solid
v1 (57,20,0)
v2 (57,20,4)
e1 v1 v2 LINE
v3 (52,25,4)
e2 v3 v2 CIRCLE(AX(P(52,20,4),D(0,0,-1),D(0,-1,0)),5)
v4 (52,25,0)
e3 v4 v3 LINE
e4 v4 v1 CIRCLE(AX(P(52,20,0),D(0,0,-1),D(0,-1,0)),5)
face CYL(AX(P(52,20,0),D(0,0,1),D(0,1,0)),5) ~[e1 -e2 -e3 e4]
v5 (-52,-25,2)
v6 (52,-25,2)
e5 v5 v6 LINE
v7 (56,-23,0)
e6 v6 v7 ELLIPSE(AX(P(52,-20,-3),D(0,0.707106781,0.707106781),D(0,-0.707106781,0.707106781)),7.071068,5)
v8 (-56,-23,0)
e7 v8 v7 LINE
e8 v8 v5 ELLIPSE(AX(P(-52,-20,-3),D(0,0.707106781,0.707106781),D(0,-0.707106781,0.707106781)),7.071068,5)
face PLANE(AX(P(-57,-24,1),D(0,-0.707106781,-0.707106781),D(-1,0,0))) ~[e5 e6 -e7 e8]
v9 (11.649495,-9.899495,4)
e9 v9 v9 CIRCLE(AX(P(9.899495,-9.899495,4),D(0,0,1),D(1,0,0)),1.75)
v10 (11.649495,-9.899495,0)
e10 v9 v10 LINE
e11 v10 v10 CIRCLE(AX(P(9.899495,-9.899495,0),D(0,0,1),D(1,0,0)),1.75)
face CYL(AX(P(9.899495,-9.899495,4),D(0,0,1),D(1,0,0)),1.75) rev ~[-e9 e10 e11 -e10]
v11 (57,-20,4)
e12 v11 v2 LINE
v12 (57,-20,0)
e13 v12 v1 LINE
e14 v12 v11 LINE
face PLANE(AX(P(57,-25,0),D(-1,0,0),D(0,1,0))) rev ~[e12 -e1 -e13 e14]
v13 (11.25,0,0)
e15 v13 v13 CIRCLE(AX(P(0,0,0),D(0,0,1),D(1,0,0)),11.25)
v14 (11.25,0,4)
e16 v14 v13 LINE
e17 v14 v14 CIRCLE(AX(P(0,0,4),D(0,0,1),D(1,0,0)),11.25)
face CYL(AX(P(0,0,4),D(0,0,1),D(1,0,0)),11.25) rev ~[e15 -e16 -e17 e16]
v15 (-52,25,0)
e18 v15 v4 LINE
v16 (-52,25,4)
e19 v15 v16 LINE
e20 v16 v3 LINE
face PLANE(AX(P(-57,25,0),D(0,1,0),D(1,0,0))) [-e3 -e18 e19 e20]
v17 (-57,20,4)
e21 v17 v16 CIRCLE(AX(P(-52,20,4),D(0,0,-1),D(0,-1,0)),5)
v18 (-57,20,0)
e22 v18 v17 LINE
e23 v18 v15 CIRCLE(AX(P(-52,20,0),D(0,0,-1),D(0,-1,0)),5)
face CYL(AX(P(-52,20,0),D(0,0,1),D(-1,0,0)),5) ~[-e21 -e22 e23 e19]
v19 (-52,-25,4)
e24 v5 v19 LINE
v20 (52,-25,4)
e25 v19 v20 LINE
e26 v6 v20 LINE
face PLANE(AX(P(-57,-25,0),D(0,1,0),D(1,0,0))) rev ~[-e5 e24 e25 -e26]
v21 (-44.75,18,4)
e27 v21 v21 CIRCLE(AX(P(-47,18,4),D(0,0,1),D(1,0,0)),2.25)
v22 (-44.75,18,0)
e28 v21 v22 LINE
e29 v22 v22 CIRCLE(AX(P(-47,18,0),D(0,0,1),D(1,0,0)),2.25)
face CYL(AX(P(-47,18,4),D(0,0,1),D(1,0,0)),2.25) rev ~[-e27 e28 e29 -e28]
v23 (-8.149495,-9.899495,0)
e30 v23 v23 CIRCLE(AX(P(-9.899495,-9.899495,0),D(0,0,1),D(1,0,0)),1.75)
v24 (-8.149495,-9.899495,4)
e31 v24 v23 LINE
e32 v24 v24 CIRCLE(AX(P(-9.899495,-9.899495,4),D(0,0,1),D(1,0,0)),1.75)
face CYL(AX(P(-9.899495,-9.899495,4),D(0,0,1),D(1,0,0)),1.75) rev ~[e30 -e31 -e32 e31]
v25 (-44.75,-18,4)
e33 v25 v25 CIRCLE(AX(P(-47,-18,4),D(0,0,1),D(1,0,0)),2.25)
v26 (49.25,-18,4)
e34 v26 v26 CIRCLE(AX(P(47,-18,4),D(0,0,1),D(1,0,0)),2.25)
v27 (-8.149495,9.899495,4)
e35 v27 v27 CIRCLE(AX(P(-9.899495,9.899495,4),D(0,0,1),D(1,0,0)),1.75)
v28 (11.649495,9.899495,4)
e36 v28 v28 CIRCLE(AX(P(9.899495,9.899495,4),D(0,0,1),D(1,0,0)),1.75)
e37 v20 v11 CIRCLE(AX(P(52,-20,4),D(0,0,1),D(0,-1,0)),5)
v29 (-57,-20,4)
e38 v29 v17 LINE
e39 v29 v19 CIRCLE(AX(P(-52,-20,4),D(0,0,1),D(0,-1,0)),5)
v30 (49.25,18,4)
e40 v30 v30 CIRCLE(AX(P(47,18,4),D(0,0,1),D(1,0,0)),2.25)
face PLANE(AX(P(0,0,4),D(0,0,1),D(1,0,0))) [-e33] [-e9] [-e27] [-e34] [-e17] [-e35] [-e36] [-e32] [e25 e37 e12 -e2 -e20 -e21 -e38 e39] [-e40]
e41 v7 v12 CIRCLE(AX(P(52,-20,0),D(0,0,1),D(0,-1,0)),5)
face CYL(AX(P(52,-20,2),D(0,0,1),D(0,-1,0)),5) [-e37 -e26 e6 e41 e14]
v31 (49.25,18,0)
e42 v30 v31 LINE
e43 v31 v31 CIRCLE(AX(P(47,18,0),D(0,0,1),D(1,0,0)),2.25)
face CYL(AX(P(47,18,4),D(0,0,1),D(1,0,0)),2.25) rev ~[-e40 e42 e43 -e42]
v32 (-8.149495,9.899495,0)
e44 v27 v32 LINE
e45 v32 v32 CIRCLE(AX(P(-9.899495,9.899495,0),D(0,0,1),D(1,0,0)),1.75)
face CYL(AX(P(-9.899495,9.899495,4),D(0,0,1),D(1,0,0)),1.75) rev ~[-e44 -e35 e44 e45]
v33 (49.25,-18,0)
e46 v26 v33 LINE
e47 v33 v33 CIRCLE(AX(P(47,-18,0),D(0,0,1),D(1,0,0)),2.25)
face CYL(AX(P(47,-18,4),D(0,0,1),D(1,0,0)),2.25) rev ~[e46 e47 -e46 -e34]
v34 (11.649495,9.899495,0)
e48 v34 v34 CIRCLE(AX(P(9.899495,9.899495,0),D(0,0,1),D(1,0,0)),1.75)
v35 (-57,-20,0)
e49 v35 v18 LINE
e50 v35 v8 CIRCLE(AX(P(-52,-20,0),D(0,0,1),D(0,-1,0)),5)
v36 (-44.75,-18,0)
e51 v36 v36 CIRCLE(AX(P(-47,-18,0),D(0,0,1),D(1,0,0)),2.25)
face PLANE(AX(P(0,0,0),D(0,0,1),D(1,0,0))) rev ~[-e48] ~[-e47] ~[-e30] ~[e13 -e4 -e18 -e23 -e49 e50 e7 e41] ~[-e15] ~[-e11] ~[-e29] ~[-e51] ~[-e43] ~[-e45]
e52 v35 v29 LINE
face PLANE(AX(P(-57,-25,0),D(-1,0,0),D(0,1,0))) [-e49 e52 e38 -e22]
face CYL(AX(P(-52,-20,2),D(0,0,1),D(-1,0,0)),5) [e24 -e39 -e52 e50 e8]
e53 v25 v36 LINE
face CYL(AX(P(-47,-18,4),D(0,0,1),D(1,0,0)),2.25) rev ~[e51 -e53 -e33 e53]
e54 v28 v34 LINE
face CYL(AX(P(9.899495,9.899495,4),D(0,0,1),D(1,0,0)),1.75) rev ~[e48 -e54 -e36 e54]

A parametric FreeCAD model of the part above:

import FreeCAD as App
import Part
import Sketcher
from FreeCAD import Vector
Q = App.Units.Quantity


def edges_at(feature, points):
    """Names of the edges that pass closest to the given points."""
    edges = feature.Shape.Edges
    near = lambda p: min(range(len(edges)), key=lambda i: edges[i].distToShape(Part.Vertex(*p))[0])
    return sorted({f"Edge{near(p) + 1}" for p in points})

doc = App.newDocument("Part")
body = doc.addObject("PartDesign::Body", "Body")

# Sketch on XY plane
sketch1 = doc.addObject("Sketcher::SketchObject", "Sketch")
body.addObject(sketch1)
sketch1.AttachmentSupport = (doc.XY_Plane, [""])
sketch1.MapMode = "FlatFace"
sketch1.addGeometry([
    Part.LineSegment(Vector(-57, 25, 0), Vector(-57, -25, 0)),
    Part.LineSegment(Vector(-57, -25, 0), Vector(57, -25, 0)),
    Part.LineSegment(Vector(57, -25, 0), Vector(57, 25, 0)),
    Part.LineSegment(Vector(57, 25, 0), Vector(-57, 25, 0)),
], False)
sketch1.addConstraint([
    Sketcher.Constraint("Coincident", 0, 2, 1, 1),
    Sketcher.Constraint("Coincident", 1, 2, 2, 1),
    Sketcher.Constraint("Coincident", 2, 2, 3, 1),
    Sketcher.Constraint("Coincident", 3, 2, 0, 1),
    Sketcher.Constraint("Vertical", 0),
    Sketcher.Constraint("Horizontal", 1),
    Sketcher.Constraint("Vertical", 2),
    Sketcher.Constraint("Horizontal", 3),
    Sketcher.Constraint("Symmetric", 0, 2, 2, 2, -1, 1),
    Sketcher.Constraint("DistanceX", 1, 1, 1, 2, Q("114 mm")),
    Sketcher.Constraint("DistanceY", 0, 2, 0, 1, Q("50 mm")),
])
pad1 = doc.addObject("PartDesign::Pad", "Pad")
body.addObject(pad1)
pad1.Profile = sketch1
pad1.Length = 4

# Sketch on XY plane
sketch2 = doc.addObject("Sketcher::SketchObject", "Sketch001")
body.addObject(sketch2)
sketch2.AttachmentSupport = (doc.XY_Plane, [""])
sketch2.MapMode = "FlatFace"
sketch2.AttachmentOffset = App.Placement(Vector(0, 0, 4), App.Rotation())
sketch2.addGeometry([
    Part.Circle(Vector(0, 0, 0), Vector(0, 0, 1), 11.2),  # 0
    Part.Circle(Vector(-47, 18, 0), Vector(0, 0, 1), 2.2),  # 1
    Part.Circle(Vector(-47, -18, 0), Vector(0, 0, 1), 2.2),  # 2
    Part.Circle(Vector(47, 18, 0), Vector(0, 0, 1), 2.2),  # 3
    Part.Circle(Vector(47, -18, 0), Vector(0, 0, 1), 2.2),  # 4
    Part.Circle(Vector(-9.9, 9.9, 0), Vector(0, 0, 1), 1.8),  # 5
    Part.Circle(Vector(9.9, 9.9, 0), Vector(0, 0, 1), 1.8),  # 6
    Part.Circle(Vector(9.9, -9.9, 0), Vector(0, 0, 1), 1.8),  # 7
    Part.Circle(Vector(-9.9, -9.9, 0), Vector(0, 0, 1), 1.8),  # 8
], False)
sketch2.addConstraint([
    Sketcher.Constraint("Coincident", 0, 3, -1, 1),
    Sketcher.Constraint("Equal", 1, 2),
    Sketcher.Constraint("Equal", 2, 3),
    Sketcher.Constraint("Equal", 3, 4),
    Sketcher.Constraint("Equal", 5, 6),
    Sketcher.Constraint("Equal", 6, 7),
    Sketcher.Constraint("Equal", 7, 8),
    Sketcher.Constraint("Symmetric", 2, 3, 3, 3, -1, 1),
    Sketcher.Constraint("Symmetric", 1, 3, 4, 3, -1, 1),
    Sketcher.Constraint("Symmetric", 5, 3, 7, 3, -1, 1),
    Sketcher.Constraint("Symmetric", 6, 3, 8, 3, -1, 1),
    Sketcher.Constraint("Symmetric", 1, 3, 3, 3, -2),
    Sketcher.Constraint("Symmetric", 5, 3, 6, 3, -2),
    Sketcher.Constraint("Diameter", 0, Q("22.5 mm")),
    Sketcher.Constraint("Diameter", 1, Q("4.5 mm")),
    Sketcher.Constraint("Diameter", 5, Q("3.5 mm")),
    Sketcher.Constraint("DistanceX", 1, 3, -1, 1, Q("47 mm")),
    Sketcher.Constraint("DistanceY", -1, 1, 1, 3, Q("18 mm")),
    Sketcher.Constraint("DistanceX", 5, 3, 6, 3, Q("19.79899 mm")),
    Sketcher.Constraint("DistanceY", 7, 3, 6, 3, Q("19.79899 mm")),
])
pocket1 = doc.addObject("PartDesign::Pocket", "Pocket")
body.addObject(pocket1)
pocket1.Profile = sketch2
pocket1.Type = "ThroughAll"
doc.recompute()

chamfer = doc.addObject("PartDesign::Chamfer", "Chamfer")
body.addObject(chamfer)
chamfer.Base = (pocket1, edges_at(pocket1, [(0, -25, 0)]))
chamfer.Size = 2
doc.recompute()

fillet = doc.addObject("PartDesign::Fillet", "Fillet")
body.addObject(fillet)
fillet.Base = (chamfer, edges_at(chamfer, [
    (-57, -25, 3),
    (-57, 25, 2),
    (57, -25, 3),
    (57, 25, 2),
]))
fillet.Radius = 5

doc.recompute()
